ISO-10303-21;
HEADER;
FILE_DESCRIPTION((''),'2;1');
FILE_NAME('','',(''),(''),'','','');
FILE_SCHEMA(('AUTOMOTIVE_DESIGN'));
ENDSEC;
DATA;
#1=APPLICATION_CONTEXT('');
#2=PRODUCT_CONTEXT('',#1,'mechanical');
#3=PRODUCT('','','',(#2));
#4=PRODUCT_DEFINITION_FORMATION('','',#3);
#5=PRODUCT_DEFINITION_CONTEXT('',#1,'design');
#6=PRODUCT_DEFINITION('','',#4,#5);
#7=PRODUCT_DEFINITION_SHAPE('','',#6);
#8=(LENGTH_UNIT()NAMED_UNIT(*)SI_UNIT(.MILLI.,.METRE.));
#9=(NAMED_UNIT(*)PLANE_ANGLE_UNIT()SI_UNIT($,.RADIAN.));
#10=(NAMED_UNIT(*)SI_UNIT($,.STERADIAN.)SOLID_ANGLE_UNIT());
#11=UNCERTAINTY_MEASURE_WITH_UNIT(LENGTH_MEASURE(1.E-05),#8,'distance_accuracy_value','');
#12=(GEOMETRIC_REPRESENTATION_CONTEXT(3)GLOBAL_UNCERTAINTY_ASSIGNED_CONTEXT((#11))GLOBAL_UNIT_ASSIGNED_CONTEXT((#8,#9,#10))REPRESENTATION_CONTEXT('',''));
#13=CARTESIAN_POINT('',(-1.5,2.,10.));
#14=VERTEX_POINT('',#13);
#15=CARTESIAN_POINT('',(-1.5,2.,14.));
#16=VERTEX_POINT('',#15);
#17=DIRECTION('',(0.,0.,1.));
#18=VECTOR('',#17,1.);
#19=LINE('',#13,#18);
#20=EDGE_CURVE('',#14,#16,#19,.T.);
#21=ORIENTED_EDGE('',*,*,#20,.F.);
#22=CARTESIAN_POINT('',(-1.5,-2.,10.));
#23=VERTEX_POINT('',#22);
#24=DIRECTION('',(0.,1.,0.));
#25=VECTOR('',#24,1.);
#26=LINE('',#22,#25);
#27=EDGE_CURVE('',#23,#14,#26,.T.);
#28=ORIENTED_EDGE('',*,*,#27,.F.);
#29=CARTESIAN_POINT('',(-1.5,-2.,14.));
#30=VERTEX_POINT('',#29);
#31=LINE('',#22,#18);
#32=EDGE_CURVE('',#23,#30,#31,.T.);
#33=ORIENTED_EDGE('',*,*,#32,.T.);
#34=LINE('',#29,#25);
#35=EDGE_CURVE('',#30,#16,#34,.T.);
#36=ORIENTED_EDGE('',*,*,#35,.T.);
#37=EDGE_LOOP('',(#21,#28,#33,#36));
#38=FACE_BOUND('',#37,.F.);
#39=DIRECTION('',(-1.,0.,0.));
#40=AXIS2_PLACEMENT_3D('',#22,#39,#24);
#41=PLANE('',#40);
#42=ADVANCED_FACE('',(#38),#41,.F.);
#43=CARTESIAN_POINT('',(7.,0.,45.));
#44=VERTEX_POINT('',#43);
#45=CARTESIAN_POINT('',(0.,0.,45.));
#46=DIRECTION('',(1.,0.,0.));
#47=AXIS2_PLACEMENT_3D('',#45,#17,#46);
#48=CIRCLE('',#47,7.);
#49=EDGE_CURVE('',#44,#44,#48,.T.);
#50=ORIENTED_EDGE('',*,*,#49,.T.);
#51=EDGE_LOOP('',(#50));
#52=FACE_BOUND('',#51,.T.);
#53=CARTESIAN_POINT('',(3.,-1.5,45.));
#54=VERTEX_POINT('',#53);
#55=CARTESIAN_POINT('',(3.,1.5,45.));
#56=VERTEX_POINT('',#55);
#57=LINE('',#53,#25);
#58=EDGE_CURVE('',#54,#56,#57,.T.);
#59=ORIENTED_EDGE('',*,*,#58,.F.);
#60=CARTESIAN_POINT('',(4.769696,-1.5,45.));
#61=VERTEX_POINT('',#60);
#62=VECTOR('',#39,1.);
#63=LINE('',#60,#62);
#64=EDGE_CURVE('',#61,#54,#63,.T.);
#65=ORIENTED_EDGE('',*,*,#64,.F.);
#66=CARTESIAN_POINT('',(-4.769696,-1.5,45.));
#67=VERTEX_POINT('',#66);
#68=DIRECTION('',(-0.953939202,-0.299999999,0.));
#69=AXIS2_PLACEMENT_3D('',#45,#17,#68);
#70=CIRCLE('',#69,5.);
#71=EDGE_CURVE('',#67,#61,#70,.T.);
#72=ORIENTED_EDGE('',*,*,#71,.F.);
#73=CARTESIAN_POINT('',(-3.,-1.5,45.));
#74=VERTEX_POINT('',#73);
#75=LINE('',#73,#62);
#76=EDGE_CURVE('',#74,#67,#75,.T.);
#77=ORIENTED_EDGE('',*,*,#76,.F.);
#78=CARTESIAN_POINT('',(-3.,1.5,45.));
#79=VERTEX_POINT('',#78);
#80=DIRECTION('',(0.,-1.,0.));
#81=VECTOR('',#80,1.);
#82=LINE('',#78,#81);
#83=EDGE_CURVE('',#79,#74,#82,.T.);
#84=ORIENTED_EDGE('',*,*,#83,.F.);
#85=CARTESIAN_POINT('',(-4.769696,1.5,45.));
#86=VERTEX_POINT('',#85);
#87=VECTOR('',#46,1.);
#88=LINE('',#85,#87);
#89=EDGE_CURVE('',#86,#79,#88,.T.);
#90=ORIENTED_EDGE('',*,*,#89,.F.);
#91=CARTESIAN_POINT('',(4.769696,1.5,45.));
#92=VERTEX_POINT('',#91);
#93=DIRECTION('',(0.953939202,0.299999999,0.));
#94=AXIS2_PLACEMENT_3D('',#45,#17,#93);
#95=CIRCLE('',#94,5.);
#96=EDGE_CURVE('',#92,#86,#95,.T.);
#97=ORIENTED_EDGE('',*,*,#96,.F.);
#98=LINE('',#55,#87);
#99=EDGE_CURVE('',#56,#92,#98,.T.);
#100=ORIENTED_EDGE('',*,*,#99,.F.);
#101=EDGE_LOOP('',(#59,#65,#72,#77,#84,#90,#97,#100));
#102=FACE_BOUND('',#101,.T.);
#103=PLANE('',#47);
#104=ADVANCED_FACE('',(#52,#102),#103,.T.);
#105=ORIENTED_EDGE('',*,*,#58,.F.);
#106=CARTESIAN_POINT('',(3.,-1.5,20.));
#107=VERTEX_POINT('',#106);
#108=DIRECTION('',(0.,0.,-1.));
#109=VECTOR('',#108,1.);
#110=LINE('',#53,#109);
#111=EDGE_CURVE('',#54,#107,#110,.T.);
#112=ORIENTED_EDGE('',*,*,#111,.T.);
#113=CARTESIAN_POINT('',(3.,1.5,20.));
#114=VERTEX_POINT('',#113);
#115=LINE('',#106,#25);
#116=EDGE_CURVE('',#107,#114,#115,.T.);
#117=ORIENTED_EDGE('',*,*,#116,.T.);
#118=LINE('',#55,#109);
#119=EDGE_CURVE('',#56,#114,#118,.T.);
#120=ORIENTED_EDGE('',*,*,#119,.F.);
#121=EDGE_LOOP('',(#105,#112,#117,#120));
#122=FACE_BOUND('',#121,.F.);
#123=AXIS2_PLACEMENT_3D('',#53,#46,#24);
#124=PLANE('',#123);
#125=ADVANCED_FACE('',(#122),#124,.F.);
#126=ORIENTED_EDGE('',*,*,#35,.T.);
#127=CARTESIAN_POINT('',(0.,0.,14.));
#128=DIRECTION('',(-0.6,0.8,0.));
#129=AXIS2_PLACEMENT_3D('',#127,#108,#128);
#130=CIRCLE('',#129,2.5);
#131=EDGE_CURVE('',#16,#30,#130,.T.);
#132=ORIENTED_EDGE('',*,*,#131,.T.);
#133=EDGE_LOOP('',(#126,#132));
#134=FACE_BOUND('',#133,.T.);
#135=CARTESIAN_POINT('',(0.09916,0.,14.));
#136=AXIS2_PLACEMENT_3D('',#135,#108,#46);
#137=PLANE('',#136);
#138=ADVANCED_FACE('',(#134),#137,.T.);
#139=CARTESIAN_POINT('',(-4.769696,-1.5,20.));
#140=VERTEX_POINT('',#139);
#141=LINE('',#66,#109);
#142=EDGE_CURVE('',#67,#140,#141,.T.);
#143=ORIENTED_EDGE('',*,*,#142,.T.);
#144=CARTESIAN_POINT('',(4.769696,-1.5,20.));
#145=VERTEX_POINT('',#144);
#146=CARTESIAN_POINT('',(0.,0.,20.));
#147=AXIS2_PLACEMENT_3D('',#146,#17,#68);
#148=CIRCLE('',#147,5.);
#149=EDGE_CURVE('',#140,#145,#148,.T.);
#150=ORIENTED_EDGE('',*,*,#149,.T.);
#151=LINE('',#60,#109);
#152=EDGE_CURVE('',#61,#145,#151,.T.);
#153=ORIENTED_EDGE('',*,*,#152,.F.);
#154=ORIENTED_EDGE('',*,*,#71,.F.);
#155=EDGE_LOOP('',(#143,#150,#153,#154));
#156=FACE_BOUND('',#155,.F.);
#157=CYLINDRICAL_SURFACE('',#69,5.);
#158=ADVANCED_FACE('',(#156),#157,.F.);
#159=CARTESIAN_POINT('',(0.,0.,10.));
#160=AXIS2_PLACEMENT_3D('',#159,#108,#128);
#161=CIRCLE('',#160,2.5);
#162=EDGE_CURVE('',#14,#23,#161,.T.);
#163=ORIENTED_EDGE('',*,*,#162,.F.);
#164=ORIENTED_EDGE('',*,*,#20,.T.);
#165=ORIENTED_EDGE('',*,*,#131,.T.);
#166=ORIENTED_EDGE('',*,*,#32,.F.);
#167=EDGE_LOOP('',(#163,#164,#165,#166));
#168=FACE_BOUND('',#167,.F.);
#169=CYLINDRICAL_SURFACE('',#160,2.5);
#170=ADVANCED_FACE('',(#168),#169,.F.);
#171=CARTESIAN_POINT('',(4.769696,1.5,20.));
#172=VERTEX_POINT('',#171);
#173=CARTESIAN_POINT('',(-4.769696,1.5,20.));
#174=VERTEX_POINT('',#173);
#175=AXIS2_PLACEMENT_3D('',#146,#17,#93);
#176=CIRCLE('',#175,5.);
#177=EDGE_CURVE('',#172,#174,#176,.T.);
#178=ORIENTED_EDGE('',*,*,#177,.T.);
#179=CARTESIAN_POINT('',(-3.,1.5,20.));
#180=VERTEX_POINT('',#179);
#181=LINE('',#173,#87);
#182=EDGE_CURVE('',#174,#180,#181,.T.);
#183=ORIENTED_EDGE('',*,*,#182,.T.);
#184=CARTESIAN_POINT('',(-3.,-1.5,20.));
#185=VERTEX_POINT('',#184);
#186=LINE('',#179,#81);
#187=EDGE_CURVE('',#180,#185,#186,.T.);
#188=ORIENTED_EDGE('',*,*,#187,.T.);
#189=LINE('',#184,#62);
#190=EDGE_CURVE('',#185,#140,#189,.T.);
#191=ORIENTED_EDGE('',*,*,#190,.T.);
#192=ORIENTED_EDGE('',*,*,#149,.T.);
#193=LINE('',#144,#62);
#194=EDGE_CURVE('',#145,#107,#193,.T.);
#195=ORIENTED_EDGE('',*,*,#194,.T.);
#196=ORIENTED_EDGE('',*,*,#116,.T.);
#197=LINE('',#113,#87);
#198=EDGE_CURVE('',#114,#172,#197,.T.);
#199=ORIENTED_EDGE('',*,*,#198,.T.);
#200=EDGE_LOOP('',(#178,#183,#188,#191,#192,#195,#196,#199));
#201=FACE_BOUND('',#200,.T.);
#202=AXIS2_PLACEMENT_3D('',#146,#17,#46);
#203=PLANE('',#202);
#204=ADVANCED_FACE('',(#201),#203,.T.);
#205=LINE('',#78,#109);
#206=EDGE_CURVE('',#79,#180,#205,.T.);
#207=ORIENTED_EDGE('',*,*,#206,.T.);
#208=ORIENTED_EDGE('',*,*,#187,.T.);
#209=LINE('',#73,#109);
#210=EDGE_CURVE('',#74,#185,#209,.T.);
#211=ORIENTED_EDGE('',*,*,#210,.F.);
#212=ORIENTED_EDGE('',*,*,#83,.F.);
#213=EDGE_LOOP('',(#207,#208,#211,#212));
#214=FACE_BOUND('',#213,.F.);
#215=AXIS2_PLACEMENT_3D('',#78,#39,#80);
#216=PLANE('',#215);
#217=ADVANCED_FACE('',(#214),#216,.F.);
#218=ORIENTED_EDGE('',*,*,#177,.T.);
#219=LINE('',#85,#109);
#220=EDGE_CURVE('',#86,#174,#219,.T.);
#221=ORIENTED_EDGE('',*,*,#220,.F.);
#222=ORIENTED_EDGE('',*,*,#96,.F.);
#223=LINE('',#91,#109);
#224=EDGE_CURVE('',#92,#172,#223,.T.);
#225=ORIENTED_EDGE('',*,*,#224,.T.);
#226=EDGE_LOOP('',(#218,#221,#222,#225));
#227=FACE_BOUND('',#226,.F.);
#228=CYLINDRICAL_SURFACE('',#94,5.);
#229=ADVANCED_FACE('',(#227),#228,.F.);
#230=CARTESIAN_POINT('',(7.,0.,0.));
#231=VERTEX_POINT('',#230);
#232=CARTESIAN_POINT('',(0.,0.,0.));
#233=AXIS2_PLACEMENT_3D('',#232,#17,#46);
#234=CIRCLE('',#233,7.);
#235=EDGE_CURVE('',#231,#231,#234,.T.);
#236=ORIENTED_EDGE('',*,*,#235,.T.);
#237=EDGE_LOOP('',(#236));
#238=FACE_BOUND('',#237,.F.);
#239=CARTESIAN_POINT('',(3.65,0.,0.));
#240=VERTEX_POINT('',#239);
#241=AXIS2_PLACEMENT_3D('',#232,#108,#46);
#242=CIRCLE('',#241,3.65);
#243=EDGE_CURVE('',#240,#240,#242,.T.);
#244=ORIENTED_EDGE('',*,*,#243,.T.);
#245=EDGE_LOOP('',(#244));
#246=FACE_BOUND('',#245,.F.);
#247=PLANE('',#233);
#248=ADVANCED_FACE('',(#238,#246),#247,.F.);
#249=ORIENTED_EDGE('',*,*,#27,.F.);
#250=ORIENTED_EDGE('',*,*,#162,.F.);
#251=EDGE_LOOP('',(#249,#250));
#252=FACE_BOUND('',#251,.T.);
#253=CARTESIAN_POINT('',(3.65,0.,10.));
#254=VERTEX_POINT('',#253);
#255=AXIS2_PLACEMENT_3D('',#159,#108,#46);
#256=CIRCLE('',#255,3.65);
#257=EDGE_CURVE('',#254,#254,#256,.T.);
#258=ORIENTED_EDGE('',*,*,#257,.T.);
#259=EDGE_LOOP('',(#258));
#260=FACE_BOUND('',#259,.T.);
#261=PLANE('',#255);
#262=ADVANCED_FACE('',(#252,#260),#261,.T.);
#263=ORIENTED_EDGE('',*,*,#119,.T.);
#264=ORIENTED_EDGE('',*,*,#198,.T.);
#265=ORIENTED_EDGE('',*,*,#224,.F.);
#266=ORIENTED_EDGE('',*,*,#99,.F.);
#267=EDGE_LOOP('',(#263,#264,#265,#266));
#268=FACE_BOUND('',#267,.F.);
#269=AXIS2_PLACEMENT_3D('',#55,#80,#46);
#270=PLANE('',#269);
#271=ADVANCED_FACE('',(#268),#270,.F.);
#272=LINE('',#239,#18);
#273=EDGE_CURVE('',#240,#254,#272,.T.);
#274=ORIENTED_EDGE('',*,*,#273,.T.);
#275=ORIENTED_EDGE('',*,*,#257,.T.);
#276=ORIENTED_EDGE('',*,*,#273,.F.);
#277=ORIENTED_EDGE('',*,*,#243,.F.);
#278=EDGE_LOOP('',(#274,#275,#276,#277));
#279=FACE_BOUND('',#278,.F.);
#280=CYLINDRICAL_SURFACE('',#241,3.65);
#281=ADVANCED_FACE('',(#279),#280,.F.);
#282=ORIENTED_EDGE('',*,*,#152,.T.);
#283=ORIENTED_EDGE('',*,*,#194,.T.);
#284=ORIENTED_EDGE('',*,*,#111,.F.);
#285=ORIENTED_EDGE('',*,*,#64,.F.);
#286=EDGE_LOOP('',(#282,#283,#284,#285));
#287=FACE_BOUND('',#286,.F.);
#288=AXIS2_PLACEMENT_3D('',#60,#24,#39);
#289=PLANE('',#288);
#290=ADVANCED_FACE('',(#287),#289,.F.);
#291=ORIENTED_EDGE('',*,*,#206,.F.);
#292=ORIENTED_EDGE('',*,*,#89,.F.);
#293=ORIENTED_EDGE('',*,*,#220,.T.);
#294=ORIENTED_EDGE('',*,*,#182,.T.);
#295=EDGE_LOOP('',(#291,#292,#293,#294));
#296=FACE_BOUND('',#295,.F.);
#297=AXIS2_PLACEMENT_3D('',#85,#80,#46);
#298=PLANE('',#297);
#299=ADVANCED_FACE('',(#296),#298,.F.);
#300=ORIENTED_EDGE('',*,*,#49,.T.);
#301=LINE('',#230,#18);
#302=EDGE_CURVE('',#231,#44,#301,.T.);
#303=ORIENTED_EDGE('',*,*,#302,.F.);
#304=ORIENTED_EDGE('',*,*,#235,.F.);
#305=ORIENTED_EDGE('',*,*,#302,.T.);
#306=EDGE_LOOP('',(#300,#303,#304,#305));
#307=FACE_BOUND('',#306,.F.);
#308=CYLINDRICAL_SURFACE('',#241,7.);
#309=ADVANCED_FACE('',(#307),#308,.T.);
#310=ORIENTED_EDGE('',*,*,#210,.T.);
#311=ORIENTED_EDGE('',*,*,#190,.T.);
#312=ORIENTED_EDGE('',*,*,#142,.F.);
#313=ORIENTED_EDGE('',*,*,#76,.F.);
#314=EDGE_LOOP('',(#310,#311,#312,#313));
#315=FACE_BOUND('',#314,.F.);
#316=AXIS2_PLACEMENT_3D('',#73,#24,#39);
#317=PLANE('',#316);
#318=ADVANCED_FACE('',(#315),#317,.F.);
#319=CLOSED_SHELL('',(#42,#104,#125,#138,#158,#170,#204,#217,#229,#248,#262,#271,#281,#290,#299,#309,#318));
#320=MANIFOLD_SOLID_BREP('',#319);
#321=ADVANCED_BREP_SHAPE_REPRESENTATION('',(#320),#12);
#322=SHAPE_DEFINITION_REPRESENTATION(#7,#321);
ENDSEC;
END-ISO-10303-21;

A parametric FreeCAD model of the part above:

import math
import FreeCAD as App
import Part
import Sketcher
from FreeCAD import Vector
Q = App.Units.Quantity

doc = App.newDocument("Part")
params = doc.addObject("Spreadsheet::Sheet", "Params")
for row, (alias, value) in enumerate([
    ("sketch1_diameter", "14 mm"),
    ("pad1_length", "45 mm"),
    ("sketch2_radius", "5 mm"),
    ("sketch2_height", "3 mm"),
    ("pocket1_length", "25 mm"),
    ("sketch3_diameter", "7.3 mm"),
    ("pocket2_length", "10 mm"),
    ("sketch4_radius", "2.5 mm"),
    ("sketch4_height", "4 mm"),
    ("pocket3_length", "4 mm"),
], start=1):
    params.set(f"A{row}", alias)
    params.set(f"B{row}", "=" + value)
    params.setAlias(f"B{row}", alias)

body = doc.addObject("PartDesign::Body", "Body")

# Sketch on XY plane
sketch1 = body.newObject("Sketcher::SketchObject", "Sketch")
sketch1.AttachmentSupport = (doc.getObject("XY_Plane"), [""])
sketch1.MapMode = "FlatFace"
sketch1.addGeometry(Part.Circle(Vector(0, 0, 0), Vector(0, 0, 1), 7), False)
sketch1.addConstraint([
    Sketcher.Constraint("Coincident", 0, 3, -1, 1),
    Sketcher.Constraint("Diameter", 0, Q("14 mm")),
])
sketch1.setExpression("Constraints[1]", "Params.sketch1_diameter")
pad1 = body.newObject("PartDesign::Pad", "Pad")
pad1.Profile = sketch1
pad1.setExpression("Length", "Params.pad1_length")

# Sketch on XY plane
sketch2 = body.newObject("Sketcher::SketchObject", "Sketch001")
sketch2.AttachmentSupport = (doc.getObject("XY_Plane"), [""])
sketch2.MapMode = "FlatFace"
sketch2.AttachmentOffset = App.Placement(Vector(0, 0, 45), App.Rotation())
sketch2.addGeometry([
    Part.ArcOfCircle(Part.Circle(Vector(0, 0, 0), Vector(0, 0, 1), 5), math.radians(17.457603), math.radians(162.542397)),  # 0
    Part.LineSegment(Vector(-4.769696, 1.5, 0), Vector(-3, 1.5, 0)),  # 1
    Part.LineSegment(Vector(-3, 1.5, 0), Vector(-3, -1.5, 0)),  # 2
    Part.LineSegment(Vector(-3, -1.5, 0), Vector(-4.769696, -1.5, 0)),  # 3
    Part.ArcOfCircle(Part.Circle(Vector(0, 0, 0), Vector(0, 0, 1), 5), math.radians(-162.542397), math.radians(-17.457603)),  # 4
    Part.LineSegment(Vector(4.769696, -1.5, 0), Vector(3, -1.5, 0)),  # 5
    Part.LineSegment(Vector(3, -1.5, 0), Vector(3, 1.5, 0)),  # 6
    Part.LineSegment(Vector(3, 1.5, 0), Vector(4.769696, 1.5, 0)),  # 7
], False)
sketch2.addConstraint([
    Sketcher.Constraint("Coincident", 0, 2, 1, 1),
    Sketcher.Constraint("Coincident", 1, 2, 2, 1),
    Sketcher.Constraint("Coincident", 2, 2, 3, 1),
    Sketcher.Constraint("Coincident", 3, 2, 4, 1),
    Sketcher.Constraint("Coincident", 4, 2, 5, 1),
    Sketcher.Constraint("Coincident", 5, 2, 6, 1),
    Sketcher.Constraint("Coincident", 6, 2, 7, 1),
    Sketcher.Constraint("Coincident", 7, 2, 0, 1),
    Sketcher.Constraint("Horizontal", 1),
    Sketcher.Constraint("Vertical", 2),
    Sketcher.Constraint("Horizontal", 3),
    Sketcher.Constraint("Horizontal", 5),
    Sketcher.Constraint("Vertical", 6),
    Sketcher.Constraint("Horizontal", 7),
    Sketcher.Constraint("Coincident", 0, 3, -1, 1),
    Sketcher.Constraint("Coincident", 4, 3, -1, 1),
    Sketcher.Constraint("Equal", 0, 4),
    Sketcher.Constraint("Symmetric", 1, 2, 5, 2, -1, 1),
    Sketcher.Constraint("Horizontal", 3, 2, 4, 2),
    Sketcher.Constraint("Horizontal", 1, 2, 6, 2),
    Sketcher.Constraint("Radius", 0, Q("5 mm")),
    Sketcher.Constraint("DistanceY", 2, 2, 2, 1, Q("3 mm")),
    Sketcher.Constraint("DistanceX", 1, 2, -1, 1, Q("3 mm")),
])
sketch2.setExpression("Constraints[20]", "Params.sketch2_radius")
sketch2.setExpression("Constraints[21]", "Params.sketch2_height")
pocket1 = body.newObject("PartDesign::Pocket", "Pocket")
pocket1.Profile = sketch2
pocket1.setExpression("Length", "Params.pocket1_length")

# Sketch on XY plane
sketch3 = body.newObject("Sketcher::SketchObject", "Sketch002")
sketch3.AttachmentSupport = (doc.getObject("XY_Plane"), [""])
sketch3.MapMode = "FlatFace"
sketch3.addGeometry(Part.Circle(Vector(0, 0, 0), Vector(0, 0, 1), 3.65), False)
sketch3.addConstraint([
    Sketcher.Constraint("Coincident", 0, 3, -1, 1),
    Sketcher.Constraint("Diameter", 0, Q("7.3 mm")),
])
sketch3.setExpression("Constraints[1]", "Params.sketch3_diameter")
pocket2 = body.newObject("PartDesign::Pocket", "Pocket001")
pocket2.Profile = sketch3
pocket2.setExpression("Length", "Params.pocket2_length")
pocket2.Reversed = True

# Sketch on XY plane
sketch4 = body.newObject("Sketcher::SketchObject", "Sketch003")
sketch4.AttachmentSupport = (doc.getObject("XY_Plane"), [""])
sketch4.MapMode = "FlatFace"
sketch4.AttachmentOffset = App.Placement(Vector(0, 0, 10), App.Rotation())
sketch4.addGeometry([
    Part.LineSegment(Vector(-1.5, -2, 0), Vector(-1.5, 2, 0)),
    Part.ArcOfCircle(Part.Circle(Vector(0, 0, 0), Vector(0, 0, 1), 2.5), math.radians(-126.869898), math.radians(126.869898)),
], False)
sketch4.addConstraint([
    Sketcher.Constraint("Coincident", 0, 1, 1, 1),
    Sketcher.Constraint("Coincident", 1, 2, 0, 2),
    Sketcher.Constraint("Vertical", 0),
    Sketcher.Constraint("Coincident", 1, 3, -1, 1),
    Sketcher.Constraint("Radius", 1, Q("2.5 mm")),
    Sketcher.Constraint("DistanceY", 0, 1, 0, 2, Q("4 mm")),
])
sketch4.setExpression("Constraints[4]", "Params.sketch4_radius")
sketch4.setExpression("Constraints[5]", "Params.sketch4_height")
pocket3 = body.newObject("PartDesign::Pocket", "Pocket002")
pocket3.Profile = sketch4
pocket3.setExpression("Length", "Params.pocket3_length")
pocket3.Reversed = True

doc.recompute()
